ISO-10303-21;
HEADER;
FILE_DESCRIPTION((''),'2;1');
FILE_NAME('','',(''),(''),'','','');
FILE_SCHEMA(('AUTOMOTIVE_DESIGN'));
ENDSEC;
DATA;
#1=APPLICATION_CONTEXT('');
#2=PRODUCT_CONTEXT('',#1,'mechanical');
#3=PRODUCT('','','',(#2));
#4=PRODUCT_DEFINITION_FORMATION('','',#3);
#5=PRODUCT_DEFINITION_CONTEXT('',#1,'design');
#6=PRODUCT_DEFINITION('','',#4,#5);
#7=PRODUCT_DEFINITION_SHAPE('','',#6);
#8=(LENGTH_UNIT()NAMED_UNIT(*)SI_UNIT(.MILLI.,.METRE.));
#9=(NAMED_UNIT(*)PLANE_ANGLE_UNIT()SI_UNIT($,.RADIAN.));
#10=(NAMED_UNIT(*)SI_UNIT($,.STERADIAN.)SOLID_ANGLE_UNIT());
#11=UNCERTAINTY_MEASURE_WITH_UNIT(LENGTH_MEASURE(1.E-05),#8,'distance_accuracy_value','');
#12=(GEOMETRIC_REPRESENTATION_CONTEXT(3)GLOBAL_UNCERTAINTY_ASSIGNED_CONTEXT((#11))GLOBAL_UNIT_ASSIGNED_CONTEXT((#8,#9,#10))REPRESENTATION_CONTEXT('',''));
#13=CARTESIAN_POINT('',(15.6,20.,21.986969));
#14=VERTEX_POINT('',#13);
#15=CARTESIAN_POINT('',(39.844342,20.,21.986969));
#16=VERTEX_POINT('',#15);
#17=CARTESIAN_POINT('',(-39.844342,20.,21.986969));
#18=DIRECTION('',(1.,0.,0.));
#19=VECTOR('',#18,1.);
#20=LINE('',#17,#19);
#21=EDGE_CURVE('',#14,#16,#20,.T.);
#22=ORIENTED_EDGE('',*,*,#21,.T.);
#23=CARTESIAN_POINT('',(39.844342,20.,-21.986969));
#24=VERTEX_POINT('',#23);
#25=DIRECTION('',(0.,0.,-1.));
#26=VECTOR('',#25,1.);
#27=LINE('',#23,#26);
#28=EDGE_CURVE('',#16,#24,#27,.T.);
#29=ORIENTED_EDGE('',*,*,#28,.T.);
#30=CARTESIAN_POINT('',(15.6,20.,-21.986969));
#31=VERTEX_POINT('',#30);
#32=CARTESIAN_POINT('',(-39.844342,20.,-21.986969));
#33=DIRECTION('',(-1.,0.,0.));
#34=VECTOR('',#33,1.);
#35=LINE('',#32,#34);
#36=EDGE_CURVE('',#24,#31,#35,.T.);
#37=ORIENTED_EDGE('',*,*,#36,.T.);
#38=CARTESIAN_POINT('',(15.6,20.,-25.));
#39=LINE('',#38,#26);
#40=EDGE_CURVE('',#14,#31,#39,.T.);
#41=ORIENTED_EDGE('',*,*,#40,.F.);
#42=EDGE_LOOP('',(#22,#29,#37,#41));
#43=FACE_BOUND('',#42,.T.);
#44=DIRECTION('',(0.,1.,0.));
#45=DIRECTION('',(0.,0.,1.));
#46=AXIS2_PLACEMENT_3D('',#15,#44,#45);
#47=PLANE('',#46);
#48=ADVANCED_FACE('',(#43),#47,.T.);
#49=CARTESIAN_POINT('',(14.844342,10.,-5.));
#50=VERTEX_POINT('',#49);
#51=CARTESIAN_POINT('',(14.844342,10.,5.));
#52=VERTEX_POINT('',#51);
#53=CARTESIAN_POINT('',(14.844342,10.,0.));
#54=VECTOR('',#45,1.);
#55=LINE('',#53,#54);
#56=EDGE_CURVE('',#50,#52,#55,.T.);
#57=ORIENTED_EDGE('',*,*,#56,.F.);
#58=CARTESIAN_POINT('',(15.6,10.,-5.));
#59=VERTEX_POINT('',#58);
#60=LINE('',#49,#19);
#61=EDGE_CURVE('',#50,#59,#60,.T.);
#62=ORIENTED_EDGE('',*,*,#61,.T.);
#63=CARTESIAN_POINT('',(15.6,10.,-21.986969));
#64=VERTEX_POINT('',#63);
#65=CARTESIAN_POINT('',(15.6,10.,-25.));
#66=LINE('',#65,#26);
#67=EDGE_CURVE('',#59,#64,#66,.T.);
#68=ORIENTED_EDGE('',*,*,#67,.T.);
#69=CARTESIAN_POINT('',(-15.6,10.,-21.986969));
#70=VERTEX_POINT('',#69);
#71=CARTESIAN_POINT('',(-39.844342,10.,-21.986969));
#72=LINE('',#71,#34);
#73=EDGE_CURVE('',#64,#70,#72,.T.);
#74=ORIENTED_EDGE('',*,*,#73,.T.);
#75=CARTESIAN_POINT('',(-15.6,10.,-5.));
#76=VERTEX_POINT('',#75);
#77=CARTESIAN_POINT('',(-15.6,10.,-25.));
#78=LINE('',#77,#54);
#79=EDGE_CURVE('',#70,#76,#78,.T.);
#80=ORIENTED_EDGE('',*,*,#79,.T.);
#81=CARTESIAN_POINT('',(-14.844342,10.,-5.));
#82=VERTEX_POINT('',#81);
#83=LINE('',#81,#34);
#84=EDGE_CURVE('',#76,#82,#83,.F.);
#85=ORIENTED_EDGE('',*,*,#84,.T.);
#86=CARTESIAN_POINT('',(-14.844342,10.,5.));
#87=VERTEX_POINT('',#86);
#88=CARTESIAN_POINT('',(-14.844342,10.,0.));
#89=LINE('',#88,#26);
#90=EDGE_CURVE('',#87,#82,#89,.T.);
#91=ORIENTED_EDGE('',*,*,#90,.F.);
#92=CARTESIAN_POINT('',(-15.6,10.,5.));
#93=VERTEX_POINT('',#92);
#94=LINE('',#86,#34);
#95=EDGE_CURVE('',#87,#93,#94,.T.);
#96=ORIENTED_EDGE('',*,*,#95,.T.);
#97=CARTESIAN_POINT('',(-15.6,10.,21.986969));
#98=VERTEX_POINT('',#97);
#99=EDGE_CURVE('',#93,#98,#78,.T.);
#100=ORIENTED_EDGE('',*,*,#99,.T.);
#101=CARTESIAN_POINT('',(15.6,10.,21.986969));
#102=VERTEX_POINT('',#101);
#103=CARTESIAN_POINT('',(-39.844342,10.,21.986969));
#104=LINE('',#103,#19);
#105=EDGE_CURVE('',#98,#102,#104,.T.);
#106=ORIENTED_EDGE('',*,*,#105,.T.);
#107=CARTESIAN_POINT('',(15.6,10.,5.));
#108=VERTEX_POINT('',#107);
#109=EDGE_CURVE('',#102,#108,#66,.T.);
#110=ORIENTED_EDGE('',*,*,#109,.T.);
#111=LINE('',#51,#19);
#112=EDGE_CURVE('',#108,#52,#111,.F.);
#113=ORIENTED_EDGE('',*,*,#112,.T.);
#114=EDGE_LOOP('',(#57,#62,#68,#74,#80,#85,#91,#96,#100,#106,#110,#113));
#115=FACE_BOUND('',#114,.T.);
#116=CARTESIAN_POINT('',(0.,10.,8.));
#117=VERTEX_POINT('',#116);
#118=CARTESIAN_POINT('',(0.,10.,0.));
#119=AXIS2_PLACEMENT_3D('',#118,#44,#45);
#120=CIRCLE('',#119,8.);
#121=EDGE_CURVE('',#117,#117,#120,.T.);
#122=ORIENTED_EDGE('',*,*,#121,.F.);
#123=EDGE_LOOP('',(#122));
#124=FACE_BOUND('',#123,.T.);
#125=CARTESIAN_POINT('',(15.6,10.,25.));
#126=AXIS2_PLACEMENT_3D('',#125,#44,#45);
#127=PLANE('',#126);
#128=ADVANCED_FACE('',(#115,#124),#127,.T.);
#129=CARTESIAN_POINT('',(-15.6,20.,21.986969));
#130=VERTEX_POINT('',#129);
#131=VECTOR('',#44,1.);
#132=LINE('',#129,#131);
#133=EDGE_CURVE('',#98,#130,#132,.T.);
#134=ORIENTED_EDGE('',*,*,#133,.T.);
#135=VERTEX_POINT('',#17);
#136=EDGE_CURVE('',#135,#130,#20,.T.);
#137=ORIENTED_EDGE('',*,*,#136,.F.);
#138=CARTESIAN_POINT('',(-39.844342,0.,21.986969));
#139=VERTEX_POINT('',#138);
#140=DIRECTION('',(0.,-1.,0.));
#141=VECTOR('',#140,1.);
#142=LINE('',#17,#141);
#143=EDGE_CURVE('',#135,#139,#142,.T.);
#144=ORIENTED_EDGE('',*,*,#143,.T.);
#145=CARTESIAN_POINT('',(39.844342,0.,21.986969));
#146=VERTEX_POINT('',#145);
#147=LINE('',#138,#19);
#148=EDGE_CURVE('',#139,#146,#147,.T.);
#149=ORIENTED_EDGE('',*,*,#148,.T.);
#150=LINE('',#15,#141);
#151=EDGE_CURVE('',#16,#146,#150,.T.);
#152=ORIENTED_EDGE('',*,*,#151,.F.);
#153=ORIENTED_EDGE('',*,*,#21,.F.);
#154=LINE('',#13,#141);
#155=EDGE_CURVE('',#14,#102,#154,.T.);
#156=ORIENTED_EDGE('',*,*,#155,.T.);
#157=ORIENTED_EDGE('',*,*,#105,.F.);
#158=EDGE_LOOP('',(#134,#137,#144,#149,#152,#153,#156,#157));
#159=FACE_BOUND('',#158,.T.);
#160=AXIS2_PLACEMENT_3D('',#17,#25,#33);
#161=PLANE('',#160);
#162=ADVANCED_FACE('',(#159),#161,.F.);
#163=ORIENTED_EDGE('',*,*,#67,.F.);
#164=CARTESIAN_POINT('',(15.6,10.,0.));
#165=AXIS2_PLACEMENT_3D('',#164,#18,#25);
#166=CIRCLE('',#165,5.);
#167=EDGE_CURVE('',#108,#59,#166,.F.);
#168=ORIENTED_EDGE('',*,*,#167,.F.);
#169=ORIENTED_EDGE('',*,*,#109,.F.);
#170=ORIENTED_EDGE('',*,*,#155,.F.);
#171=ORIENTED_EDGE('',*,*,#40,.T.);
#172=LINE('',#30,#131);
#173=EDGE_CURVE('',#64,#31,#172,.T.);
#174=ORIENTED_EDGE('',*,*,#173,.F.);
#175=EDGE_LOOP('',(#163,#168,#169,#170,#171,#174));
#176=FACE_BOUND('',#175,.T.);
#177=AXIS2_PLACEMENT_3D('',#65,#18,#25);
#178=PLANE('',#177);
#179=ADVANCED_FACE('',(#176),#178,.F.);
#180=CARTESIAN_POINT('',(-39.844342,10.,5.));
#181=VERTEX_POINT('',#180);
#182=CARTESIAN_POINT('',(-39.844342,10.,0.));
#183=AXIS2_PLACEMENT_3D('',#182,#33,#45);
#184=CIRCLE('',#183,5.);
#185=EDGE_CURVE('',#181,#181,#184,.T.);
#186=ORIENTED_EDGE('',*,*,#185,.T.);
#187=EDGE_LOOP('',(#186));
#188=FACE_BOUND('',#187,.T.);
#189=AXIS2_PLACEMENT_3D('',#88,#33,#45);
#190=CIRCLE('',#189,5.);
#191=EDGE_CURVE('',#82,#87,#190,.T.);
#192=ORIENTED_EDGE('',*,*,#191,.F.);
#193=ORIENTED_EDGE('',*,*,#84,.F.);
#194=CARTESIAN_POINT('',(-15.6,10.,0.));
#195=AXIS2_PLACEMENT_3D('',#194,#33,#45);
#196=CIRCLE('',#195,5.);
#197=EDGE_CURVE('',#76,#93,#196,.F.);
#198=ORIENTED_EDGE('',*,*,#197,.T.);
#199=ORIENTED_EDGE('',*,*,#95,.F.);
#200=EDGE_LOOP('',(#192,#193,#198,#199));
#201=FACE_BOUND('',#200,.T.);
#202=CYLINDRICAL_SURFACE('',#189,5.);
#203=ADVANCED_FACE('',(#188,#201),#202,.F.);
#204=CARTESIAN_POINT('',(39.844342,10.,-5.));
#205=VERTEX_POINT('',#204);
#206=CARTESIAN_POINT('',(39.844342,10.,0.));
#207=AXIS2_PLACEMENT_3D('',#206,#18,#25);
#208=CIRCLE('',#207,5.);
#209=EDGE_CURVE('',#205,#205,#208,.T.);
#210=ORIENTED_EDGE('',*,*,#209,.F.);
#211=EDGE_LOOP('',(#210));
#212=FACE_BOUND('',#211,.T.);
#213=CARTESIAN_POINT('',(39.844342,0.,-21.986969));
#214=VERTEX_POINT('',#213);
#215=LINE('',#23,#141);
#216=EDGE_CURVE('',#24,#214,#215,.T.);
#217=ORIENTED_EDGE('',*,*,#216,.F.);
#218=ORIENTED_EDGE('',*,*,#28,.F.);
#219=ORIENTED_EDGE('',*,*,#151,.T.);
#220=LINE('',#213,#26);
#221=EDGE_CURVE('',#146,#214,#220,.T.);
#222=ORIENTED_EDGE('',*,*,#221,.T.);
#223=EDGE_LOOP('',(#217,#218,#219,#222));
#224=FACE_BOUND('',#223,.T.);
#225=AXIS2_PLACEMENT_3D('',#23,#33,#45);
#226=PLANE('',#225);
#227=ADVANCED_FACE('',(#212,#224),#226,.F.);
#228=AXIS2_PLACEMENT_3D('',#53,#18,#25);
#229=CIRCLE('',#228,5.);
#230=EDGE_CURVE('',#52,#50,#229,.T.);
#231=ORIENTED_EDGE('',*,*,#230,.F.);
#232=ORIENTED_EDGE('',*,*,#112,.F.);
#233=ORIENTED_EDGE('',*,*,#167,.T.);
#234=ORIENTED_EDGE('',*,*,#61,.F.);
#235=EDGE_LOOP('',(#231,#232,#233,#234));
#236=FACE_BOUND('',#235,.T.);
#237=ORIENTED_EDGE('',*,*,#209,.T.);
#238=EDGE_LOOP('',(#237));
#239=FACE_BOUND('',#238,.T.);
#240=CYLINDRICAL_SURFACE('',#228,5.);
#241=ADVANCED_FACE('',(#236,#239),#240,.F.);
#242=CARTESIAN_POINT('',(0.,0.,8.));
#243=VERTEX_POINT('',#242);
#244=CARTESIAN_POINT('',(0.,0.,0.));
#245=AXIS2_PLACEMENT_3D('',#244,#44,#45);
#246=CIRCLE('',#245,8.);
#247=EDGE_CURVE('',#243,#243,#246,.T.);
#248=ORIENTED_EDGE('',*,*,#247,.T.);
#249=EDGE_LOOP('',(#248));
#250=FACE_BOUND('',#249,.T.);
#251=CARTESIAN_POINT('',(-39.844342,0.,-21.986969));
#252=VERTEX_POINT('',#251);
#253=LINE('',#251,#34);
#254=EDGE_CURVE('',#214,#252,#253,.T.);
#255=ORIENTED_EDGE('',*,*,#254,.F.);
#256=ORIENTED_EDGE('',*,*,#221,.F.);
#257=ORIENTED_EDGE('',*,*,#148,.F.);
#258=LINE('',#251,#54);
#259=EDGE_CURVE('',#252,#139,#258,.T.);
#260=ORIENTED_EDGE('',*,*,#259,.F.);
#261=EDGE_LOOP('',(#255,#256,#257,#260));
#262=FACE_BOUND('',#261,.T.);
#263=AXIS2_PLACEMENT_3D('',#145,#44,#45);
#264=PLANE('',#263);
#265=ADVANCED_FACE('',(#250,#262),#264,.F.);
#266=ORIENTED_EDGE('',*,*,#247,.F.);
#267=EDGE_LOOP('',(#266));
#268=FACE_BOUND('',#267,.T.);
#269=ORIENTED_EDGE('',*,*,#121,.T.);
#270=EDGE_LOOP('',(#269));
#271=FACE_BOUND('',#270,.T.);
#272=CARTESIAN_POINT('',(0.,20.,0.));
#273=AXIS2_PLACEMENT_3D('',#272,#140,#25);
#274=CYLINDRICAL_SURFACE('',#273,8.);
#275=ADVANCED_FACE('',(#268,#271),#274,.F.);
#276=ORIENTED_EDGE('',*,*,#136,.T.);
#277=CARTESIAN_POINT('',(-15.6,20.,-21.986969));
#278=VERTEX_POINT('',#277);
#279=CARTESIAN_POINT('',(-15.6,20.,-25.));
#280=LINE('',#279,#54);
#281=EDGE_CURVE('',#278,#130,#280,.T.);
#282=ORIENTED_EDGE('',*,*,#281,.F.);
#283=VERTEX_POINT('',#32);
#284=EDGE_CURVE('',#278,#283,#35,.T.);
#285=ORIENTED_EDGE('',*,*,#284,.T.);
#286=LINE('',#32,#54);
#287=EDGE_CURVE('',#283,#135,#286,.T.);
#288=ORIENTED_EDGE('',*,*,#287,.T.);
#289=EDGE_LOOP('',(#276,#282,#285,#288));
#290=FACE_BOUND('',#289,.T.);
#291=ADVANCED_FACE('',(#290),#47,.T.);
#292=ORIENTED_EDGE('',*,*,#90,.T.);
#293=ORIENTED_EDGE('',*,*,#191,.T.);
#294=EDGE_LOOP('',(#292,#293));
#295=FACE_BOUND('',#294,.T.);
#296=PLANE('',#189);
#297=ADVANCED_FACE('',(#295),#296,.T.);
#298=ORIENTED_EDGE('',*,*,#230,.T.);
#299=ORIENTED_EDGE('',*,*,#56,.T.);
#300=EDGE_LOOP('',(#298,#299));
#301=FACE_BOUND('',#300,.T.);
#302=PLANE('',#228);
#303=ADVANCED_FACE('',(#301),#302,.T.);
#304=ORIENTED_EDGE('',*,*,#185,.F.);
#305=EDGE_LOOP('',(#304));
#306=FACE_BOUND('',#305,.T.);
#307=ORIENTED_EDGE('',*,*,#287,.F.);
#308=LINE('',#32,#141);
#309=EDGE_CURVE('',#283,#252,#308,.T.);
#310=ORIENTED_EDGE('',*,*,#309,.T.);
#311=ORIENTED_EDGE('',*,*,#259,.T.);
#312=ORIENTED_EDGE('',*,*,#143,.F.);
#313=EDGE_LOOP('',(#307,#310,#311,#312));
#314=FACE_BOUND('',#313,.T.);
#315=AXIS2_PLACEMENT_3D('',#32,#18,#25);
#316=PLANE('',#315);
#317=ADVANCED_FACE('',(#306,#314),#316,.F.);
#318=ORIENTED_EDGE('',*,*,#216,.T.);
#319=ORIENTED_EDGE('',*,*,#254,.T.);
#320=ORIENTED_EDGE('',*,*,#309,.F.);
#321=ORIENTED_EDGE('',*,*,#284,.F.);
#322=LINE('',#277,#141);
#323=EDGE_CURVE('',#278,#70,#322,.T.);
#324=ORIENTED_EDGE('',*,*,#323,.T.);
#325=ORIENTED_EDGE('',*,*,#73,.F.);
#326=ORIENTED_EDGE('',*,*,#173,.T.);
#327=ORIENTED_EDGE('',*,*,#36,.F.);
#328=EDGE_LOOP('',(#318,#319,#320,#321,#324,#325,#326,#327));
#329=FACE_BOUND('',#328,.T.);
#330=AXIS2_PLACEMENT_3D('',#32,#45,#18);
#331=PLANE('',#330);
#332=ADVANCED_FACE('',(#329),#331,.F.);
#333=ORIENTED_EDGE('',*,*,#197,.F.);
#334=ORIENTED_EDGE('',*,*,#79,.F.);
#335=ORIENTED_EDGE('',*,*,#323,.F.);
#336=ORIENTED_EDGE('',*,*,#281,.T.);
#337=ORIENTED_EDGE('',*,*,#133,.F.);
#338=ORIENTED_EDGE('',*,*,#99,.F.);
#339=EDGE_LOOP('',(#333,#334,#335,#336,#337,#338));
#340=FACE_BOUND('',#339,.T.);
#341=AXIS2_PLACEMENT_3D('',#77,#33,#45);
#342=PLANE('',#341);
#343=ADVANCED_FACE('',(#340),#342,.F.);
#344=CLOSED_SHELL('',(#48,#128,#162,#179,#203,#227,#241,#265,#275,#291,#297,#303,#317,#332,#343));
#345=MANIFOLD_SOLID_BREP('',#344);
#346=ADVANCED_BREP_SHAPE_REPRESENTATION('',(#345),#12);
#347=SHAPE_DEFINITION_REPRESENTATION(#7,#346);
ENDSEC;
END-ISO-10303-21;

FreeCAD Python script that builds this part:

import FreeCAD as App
import Part
import Sketcher
Q = App.Units.Quantity


def add_polygon(sketch, points):
    """Adds a closed chain of lines whose ends are joined by coincident constraints."""
    first, n = sketch.GeometryCount, len(points)
    for a, b in zip(points, points[1:] + points[:1]):
        sketch.addGeometry(Part.LineSegment(App.Vector(*a, 0), App.Vector(*b, 0)), False)
    for i in range(n):
        sketch.addConstraint(Sketcher.Constraint("Coincident", first + i, 2, first + (i + 1) % n, 1))

doc = App.newDocument("Part")
body = doc.addObject("PartDesign::Body", "Body")

sketch1 = doc.addObject("Sketcher::SketchObject", "Sketch")
body.addObject(sketch1)
sketch1.AttachmentSupport = (doc.XZ_Plane, [""])
sketch1.MapMode = "FlatFace"
add_polygon(sketch1, [(-40, -22), (-40, 22), (40, 22), (40, -22)])
sketch1.addGeometry(Part.Circle(App.Vector(0, 0, 0), App.Vector(0, 0, 1), 8), False)
sketch1.addConstraint(Sketcher.Constraint("Vertical", 0))
sketch1.addConstraint(Sketcher.Constraint("Horizontal", 1))
sketch1.addConstraint(Sketcher.Constraint("Vertical", 2))
sketch1.addConstraint(Sketcher.Constraint("Horizontal", 3))
sketch1.addConstraint(Sketcher.Constraint("Coincident", 4, 3, -1, 1))
sketch1.addConstraint(Sketcher.Constraint("Symmetric", 0, 2, 2, 2, -1, 1))
sketch1.addConstraint(Sketcher.Constraint("Diameter", 4, Q("16 mm")))
sketch1.addConstraint(Sketcher.Constraint("DistanceY", 0, 1, 0, 2, Q("43.973939 mm")))
sketch1.addConstraint(Sketcher.Constraint("DistanceX", 1, 1, 1, 2, Q("79.688685 mm")))
pad1 = doc.addObject("PartDesign::Pad", "Pad")
body.addObject(pad1)
pad1.Profile = sketch1
pad1.Length = 20
pad1.Reversed = True

sketch2 = doc.addObject("Sketcher::SketchObject", "Sketch001")
body.addObject(sketch2)
sketch2.AttachmentSupport = (doc.YZ_Plane, [""])
sketch2.MapMode = "FlatFace"
sketch2.AttachmentOffset = App.Placement(App.Vector(0, 0, -39.844342), App.Rotation())
sketch2.addGeometry(Part.Circle(App.Vector(10, 0, 0), App.Vector(0, 0, 1), 5), False)
sketch2.addConstraint(Sketcher.Constraint("PointOnObject", 0, 3, -1))
sketch2.addConstraint(Sketcher.Constraint("Diameter", 0, Q("10 mm")))
sketch2.addConstraint(Sketcher.Constraint("DistanceX", -1, 1, 0, 3, Q("10 mm")))
pocket1 = doc.addObject("PartDesign::Pocket", "Pocket")
body.addObject(pocket1)
pocket1.Profile = sketch2
pocket1.Length = 25
pocket1.Reversed = True

sketch3 = doc.addObject("Sketcher::SketchObject", "Sketch002")
body.addObject(sketch3)
sketch3.AttachmentSupport = (doc.YZ_Plane, [""])
sketch3.MapMode = "FlatFace"
sketch3.AttachmentOffset = App.Placement(App.Vector(0, 0, 14.844342), App.Rotation())
sketch3.addGeometry(Part.Circle(App.Vector(10, 0, 0), App.Vector(0, 0, 1), 5), False)
sketch3.addConstraint(Sketcher.Constraint("PointOnObject", 0, 3, -1))
sketch3.addConstraint(Sketcher.Constraint("Diameter", 0, Q("10 mm")))
sketch3.addConstraint(Sketcher.Constraint("DistanceX", -1, 1, 0, 3, Q("10 mm")))
pocket2 = doc.addObject("PartDesign::Pocket", "Pocket001")
body.addObject(pocket2)
pocket2.Profile = sketch3
pocket2.Length = 25
pocket2.Reversed = True

sketch4 = doc.addObject("Sketcher::SketchObject", "Sketch003")
body.addObject(sketch4)
sketch4.AttachmentSupport = (doc.XZ_Plane, [""])
sketch4.MapMode = "FlatFace"
sketch4.AttachmentOffset = App.Placement(App.Vector(0, 0, -20), App.Rotation())
add_polygon(sketch4, [(-16, -25), (-16, 25), (16, 25), (16, -25)])
sketch4.addConstraint(Sketcher.Constraint("Vertical", 0))
sketch4.addConstraint(Sketcher.Constraint("Horizontal", 1))
sketch4.addConstraint(Sketcher.Constraint("Vertical", 2))
sketch4.addConstraint(Sketcher.Constraint("Horizontal", 3))
sketch4.addConstraint(Sketcher.Constraint("Symmetric", 0, 2, 2, 2, -1, 1))
sketch4.addConstraint(Sketcher.Constraint("DistanceY", 0, 1, 0, 2, Q("50 mm")))
sketch4.addConstraint(Sketcher.Constraint("DistanceX", 1, 1, 1, 2, Q("31.2 mm")))
pocket3 = doc.addObject("PartDesign::Pocket", "Pocket002")
body.addObject(pocket3)
pocket3.Profile = sketch4
pocket3.Length = 10
pocket3.Reversed = True

doc.recompute()
